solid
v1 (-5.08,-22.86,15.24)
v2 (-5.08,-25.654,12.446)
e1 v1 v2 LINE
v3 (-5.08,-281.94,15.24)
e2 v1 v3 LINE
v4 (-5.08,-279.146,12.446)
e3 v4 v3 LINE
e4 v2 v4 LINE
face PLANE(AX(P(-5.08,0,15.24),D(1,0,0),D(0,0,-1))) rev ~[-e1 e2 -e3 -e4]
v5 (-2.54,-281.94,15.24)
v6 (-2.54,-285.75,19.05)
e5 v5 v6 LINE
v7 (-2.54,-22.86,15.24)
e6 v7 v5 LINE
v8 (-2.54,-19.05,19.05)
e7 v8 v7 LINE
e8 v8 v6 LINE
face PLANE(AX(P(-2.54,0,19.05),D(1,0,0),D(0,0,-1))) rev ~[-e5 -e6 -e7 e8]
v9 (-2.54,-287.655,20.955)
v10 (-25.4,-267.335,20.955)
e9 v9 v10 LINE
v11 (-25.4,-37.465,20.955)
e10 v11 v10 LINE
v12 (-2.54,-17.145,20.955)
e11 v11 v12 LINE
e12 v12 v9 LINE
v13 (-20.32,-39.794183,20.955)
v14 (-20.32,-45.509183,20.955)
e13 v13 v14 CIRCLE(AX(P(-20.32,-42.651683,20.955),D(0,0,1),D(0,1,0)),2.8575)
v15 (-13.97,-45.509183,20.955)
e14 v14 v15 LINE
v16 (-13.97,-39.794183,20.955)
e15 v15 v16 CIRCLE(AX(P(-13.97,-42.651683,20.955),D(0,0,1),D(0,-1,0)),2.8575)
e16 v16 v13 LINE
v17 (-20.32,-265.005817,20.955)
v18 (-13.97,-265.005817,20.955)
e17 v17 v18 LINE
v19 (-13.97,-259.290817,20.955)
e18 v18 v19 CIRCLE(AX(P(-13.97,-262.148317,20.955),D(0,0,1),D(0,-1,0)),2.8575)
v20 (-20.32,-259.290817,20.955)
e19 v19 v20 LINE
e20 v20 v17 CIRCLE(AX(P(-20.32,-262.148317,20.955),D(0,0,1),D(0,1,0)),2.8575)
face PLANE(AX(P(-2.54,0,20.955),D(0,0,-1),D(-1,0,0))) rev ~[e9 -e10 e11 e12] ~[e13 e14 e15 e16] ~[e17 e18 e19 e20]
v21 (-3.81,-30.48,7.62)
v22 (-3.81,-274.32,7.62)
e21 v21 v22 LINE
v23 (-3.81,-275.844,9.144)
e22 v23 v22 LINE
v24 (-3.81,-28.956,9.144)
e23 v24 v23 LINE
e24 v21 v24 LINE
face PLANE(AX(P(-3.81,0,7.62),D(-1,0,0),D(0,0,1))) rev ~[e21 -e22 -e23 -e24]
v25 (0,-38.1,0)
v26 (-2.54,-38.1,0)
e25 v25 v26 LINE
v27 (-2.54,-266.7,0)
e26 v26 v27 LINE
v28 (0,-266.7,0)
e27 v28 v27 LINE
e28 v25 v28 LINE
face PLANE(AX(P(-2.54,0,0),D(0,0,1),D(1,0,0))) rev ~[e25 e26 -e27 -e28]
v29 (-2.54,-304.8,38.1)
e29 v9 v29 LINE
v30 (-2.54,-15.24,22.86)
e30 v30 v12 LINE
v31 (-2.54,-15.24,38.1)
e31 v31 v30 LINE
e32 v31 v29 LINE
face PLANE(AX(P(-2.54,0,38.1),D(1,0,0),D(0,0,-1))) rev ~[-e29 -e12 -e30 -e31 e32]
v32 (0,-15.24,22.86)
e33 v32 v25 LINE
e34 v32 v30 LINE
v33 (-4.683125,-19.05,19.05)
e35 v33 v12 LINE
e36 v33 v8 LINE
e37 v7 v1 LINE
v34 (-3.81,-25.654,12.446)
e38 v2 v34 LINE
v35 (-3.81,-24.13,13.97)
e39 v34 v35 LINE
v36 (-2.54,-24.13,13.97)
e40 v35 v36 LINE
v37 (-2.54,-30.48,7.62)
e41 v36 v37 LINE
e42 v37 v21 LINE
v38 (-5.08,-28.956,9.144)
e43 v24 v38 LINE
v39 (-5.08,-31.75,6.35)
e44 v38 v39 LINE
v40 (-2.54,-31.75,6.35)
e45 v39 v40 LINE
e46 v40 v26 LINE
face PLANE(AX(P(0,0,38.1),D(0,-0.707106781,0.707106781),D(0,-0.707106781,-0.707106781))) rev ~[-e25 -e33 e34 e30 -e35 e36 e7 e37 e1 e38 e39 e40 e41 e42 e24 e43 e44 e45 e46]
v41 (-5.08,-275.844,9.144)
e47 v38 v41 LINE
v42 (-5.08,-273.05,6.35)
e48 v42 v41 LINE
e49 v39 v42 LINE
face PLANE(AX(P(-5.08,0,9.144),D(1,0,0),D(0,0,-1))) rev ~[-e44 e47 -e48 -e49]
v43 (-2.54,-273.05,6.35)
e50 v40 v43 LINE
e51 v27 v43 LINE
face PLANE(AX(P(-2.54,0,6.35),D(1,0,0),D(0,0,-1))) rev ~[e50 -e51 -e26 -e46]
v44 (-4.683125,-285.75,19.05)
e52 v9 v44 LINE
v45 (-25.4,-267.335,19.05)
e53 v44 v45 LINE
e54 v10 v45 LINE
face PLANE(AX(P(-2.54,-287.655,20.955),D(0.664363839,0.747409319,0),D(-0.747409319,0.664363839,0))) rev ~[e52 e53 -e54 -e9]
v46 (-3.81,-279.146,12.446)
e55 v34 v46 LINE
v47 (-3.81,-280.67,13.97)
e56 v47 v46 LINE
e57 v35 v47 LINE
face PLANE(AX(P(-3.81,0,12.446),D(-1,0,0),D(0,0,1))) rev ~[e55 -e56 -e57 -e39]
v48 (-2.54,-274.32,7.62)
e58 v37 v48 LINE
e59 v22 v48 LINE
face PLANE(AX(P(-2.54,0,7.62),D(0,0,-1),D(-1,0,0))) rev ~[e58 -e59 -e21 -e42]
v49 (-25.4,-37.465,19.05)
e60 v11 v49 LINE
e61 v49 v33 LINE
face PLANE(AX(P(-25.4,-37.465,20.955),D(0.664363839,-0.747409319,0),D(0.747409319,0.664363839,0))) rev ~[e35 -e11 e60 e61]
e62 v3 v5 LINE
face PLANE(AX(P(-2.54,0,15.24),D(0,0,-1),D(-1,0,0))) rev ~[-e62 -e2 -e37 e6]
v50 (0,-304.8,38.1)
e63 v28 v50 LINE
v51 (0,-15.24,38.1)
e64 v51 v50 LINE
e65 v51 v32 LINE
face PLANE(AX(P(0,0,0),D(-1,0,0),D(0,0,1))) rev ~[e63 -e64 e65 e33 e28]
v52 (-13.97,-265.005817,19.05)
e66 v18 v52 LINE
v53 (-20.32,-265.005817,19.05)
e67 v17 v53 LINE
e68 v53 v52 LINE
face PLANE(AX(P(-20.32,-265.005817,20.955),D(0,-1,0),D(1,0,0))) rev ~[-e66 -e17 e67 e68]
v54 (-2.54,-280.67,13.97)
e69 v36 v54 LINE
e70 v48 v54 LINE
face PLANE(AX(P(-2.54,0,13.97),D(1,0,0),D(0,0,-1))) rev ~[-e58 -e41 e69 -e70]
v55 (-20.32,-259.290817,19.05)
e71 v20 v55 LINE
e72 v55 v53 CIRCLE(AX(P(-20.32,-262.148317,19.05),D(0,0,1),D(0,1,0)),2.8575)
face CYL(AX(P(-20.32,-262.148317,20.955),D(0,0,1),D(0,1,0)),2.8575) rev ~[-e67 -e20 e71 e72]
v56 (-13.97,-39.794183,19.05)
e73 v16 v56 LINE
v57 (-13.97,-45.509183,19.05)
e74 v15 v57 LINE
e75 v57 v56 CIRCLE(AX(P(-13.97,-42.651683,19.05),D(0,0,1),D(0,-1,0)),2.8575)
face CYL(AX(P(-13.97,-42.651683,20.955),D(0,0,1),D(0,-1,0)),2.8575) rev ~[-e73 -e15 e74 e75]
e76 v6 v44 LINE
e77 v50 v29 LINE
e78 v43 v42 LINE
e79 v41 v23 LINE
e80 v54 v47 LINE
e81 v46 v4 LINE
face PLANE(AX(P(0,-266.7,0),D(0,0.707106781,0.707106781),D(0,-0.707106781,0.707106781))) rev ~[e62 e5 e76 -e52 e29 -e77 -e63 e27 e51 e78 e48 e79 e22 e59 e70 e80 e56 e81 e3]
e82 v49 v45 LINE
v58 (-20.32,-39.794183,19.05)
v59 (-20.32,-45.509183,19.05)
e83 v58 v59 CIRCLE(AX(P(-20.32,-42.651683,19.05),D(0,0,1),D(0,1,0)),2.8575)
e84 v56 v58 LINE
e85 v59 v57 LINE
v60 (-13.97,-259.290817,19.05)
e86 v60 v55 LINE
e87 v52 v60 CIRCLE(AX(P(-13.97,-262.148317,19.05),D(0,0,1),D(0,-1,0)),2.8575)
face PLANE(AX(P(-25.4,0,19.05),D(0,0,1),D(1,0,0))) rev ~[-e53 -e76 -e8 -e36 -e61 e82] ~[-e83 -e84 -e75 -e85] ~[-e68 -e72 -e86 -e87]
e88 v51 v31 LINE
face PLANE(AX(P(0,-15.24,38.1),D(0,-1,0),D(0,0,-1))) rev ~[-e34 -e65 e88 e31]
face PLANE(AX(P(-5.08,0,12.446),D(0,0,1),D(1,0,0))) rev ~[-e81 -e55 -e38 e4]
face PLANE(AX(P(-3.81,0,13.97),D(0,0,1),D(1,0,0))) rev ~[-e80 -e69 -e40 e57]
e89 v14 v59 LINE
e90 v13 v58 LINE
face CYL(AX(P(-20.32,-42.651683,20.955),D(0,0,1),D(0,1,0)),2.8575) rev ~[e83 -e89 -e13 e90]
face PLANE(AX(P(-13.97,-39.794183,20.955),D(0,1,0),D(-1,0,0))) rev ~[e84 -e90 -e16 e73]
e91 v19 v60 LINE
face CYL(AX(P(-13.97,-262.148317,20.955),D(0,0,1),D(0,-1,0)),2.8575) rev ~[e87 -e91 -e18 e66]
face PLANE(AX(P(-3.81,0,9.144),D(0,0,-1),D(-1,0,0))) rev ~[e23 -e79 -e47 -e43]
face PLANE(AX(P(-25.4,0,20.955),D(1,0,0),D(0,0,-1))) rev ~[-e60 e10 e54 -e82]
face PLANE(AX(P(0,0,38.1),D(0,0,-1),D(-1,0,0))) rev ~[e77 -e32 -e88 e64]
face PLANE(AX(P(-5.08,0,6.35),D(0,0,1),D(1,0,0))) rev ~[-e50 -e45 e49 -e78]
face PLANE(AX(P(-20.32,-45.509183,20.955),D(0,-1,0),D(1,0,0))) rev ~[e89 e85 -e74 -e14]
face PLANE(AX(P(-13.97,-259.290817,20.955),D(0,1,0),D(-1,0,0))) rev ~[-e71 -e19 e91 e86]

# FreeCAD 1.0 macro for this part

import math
import FreeCAD as App
import Part
import Sketcher
from FreeCAD import Vector
Q = App.Units.Quantity

doc = App.newDocument("Part")
params = doc.addObject("Spreadsheet::Sheet", "Params")
for row, (alias, value) in enumerate([
    ("sketch1_width", "0.1 in"),
    ("sketch1_width2", "0.9 in"),
    ("sketch1_height", "1.5 in"),
    ("sketch1_height2", "0.15 in"),
    ("sketch1_height3", "0.11 in"),
    ("pad1_length", "12 in"),
    ("sketch2_width", "1.5 in"),
    ("pocket1_length", "1 in"),
    ("sketch3_width", "0.9 in"),
    ("sketch3_height", "0.8 in"),
    ("pocket2_length", "1 in"),
    ("sketch4_width", "0.25 in"),
    ("pocket3_length", "1 in"),
    ("sketch5_width", "0.6 in"),
    ("pocket4_length", "1 in"),
], start=1):
    params.set(f"A{row}", alias)
    params.set(f"B{row}", "=" + value)
    params.setAlias(f"B{row}", alias)

body = doc.addObject("PartDesign::Body", "Body")

# Sketch on XZ plane
sketch1 = body.newObject("Sketcher::SketchObject", "Sketch")
sketch1.AttachmentSupport = (doc.getObject("XZ_Plane"), [""])
sketch1.MapMode = "FlatFace"
sketch1.addGeometry([
    Part.LineSegment(Vector(-2.5, 0, 0), Vector(0, 0, 0)),  # 0
    Part.LineSegment(Vector(0, 0, 0), Vector(0, 38.1, 0)),  # 1
    Part.LineSegment(Vector(0, 38.1, 0), Vector(-2.5, 38.1, 0)),  # 2
    Part.LineSegment(Vector(-2.5, 38.1, 0), Vector(-2.5, 21, 0)),  # 3
    Part.LineSegment(Vector(-2.5, 21, 0), Vector(-25.4, 21, 0)),  # 4
    Part.LineSegment(Vector(-25.4, 21, 0), Vector(-25.4, 19.1, 0)),  # 5
    Part.LineSegment(Vector(-25.4, 19.1, 0), Vector(-2.5, 19.1, 0)),  # 6
    Part.LineSegment(Vector(-2.5, 19.1, 0), Vector(-2.5, 15.2, 0)),  # 7
    Part.LineSegment(Vector(-2.5, 15.2, 0), Vector(-5.1, 15.2, 0)),  # 8
    Part.LineSegment(Vector(-5.1, 15.2, 0), Vector(-5.1, 12.4, 0)),  # 9
    Part.LineSegment(Vector(-5.1, 12.4, 0), Vector(-3.8, 12.4, 0)),  # 10
    Part.LineSegment(Vector(-3.8, 12.4, 0), Vector(-3.8, 14, 0)),  # 11
    Part.LineSegment(Vector(-3.8, 14, 0), Vector(-2.5, 14, 0)),  # 12
    Part.LineSegment(Vector(-2.5, 14, 0), Vector(-2.5, 7.6, 0)),  # 13
    Part.LineSegment(Vector(-2.5, 7.6, 0), Vector(-3.8, 7.6, 0)),  # 14
    Part.LineSegment(Vector(-3.8, 7.6, 0), Vector(-3.8, 9.1, 0)),  # 15
    Part.LineSegment(Vector(-3.8, 9.1, 0), Vector(-5.1, 9.1, 0)),  # 16
    Part.LineSegment(Vector(-5.1, 9.1, 0), Vector(-5.1, 6.3, 0)),  # 17
    Part.LineSegment(Vector(-5.1, 6.3, 0), Vector(-2.5, 6.3, 0)),  # 18
    Part.LineSegment(Vector(-2.5, 6.3, 0), Vector(-2.5, 0, 0)),  # 19
], False)
sketch1.addConstraint([
    Sketcher.Constraint("Coincident", 0, 2, 1, 1),
    Sketcher.Constraint("Coincident", 1, 2, 2, 1),
    Sketcher.Constraint("Coincident", 2, 2, 3, 1),
    Sketcher.Constraint("Coincident", 3, 2, 4, 1),
    Sketcher.Constraint("Coincident", 4, 2, 5, 1),
    Sketcher.Constraint("Coincident", 5, 2, 6, 1),
    Sketcher.Constraint("Coincident", 6, 2, 7, 1),
    Sketcher.Constraint("Coincident", 7, 2, 8, 1),
    Sketcher.Constraint("Coincident", 8, 2, 9, 1),
    Sketcher.Constraint("Coincident", 9, 2, 10, 1),
    Sketcher.Constraint("Coincident", 10, 2, 11, 1),
    Sketcher.Constraint("Coincident", 11, 2, 12, 1),
    Sketcher.Constraint("Coincident", 12, 2, 13, 1),
    Sketcher.Constraint("Coincident", 13, 2, 14, 1),
    Sketcher.Constraint("Coincident", 14, 2, 15, 1),
    Sketcher.Constraint("Coincident", 15, 2, 16, 1),
    Sketcher.Constraint("Coincident", 16, 2, 17, 1),
    Sketcher.Constraint("Coincident", 17, 2, 18, 1),
    Sketcher.Constraint("Coincident", 18, 2, 19, 1),
    Sketcher.Constraint("Coincident", 19, 2, 0, 1),
    Sketcher.Constraint("Horizontal", 0),
    Sketcher.Constraint("Vertical", 1),
    Sketcher.Constraint("Horizontal", 2),
    Sketcher.Constraint("Vertical", 3),
    Sketcher.Constraint("Horizontal", 4),
    Sketcher.Constraint("Vertical", 5),
    Sketcher.Constraint("Horizontal", 6),
    Sketcher.Constraint("Vertical", 7),
    Sketcher.Constraint("Horizontal", 8),
    Sketcher.Constraint("Vertical", 9),
    Sketcher.Constraint("Horizontal", 10),
    Sketcher.Constraint("Vertical", 11),
    Sketcher.Constraint("Horizontal", 12),
    Sketcher.Constraint("Vertical", 13),
    Sketcher.Constraint("Horizontal", 14),
    Sketcher.Constraint("Vertical", 15),
    Sketcher.Constraint("Horizontal", 16),
    Sketcher.Constraint("Vertical", 17),
    Sketcher.Constraint("Horizontal", 18),
    Sketcher.Constraint("Vertical", 19),
    Sketcher.Constraint("Coincident", 0, 2, -1, 1),
    Sketcher.Constraint("Vertical", 3, 2, 6, 2),
    Sketcher.Constraint("Vertical", 7, 2, 12, 2),
    Sketcher.Constraint("Vertical", 11, 2, 14, 2),
    Sketcher.Constraint("Vertical", 9, 2, 16, 2),
    Sketcher.Constraint("Vertical", 13, 2, 18, 2),
    Sketcher.Constraint("Equal", 2, 8),
    Sketcher.Constraint("Equal", 10, 12),
    Sketcher.Constraint("Equal", 11, 15),
    Sketcher.Constraint("Equal", 9, 17),
    Sketcher.Constraint("Equal", 13, 19),
    Sketcher.Constraint("DistanceX", 0, 1, 0, 2, Q("0.1 in")),
    Sketcher.Constraint("DistanceX", 4, 2, 4, 1, Q("0.9 in")),
    Sketcher.Constraint("DistanceY", 1, 1, 1, 2, Q("1.5 in")),
    Sketcher.Constraint("DistanceY", 7, 2, 7, 1, Q("0.15 in")),
    Sketcher.Constraint("DistanceY", 9, 2, 9, 1, Q("0.11 in")),
    Sketcher.Constraint("DistanceY", 11, 1, 11, 2, Q("0.06 in")),
    Sketcher.Constraint("DistanceY", 13, 2, 13, 1, Q("0.25 in")),
    Sketcher.Constraint("DistanceY", 3, 2, 3, 1, Q("0.675 in")),
])
sketch1.setExpression("Constraints[51]", "Params.sketch1_width")
sketch1.setExpression("Constraints[52]", "Params.sketch1_width2")
sketch1.setExpression("Constraints[53]", "Params.sketch1_height")
sketch1.setExpression("Constraints[54]", "Params.sketch1_height2")
sketch1.setExpression("Constraints[55]", "Params.sketch1_height3")
pad1 = body.newObject("PartDesign::Pad", "Pad")
pad1.Profile = sketch1
pad1.setExpression("Length", "Params.pad1_length")

# Sketch on YZ plane
sketch2 = body.newObject("Sketcher::SketchObject", "Sketch001")
sketch2.AttachmentSupport = (doc.getObject("YZ_Plane"), [""])
sketch2.MapMode = "FlatFace"
sketch2.addGeometry([
    Part.LineSegment(Vector(-267, 0, 0), Vector(-305, 38, 0)),  # 0
    Part.LineSegment(Vector(-305, 38, 0), Vector(-305, 0, 0)),  # 1
    Part.LineSegment(Vector(-305, 0, 0), Vector(-267, 0, 0)),  # 2
    Part.LineSegment(Vector(0, 0, 0), Vector(0, 38, 0)),  # 3
    Part.LineSegment(Vector(0, 38, 0), Vector(-38, 0, 0)),  # 4
    Part.LineSegment(Vector(-38, 0, 0), Vector(0, 0, 0)),  # 5
], False)
sketch2.addConstraint([
    Sketcher.Constraint("Coincident", 0, 2, 1, 1),
    Sketcher.Constraint("Coincident", 1, 2, 2, 1),
    Sketcher.Constraint("Coincident", 2, 2, 0, 1),
    Sketcher.Constraint("Coincident", 3, 2, 4, 1),
    Sketcher.Constraint("Coincident", 4, 2, 5, 1),
    Sketcher.Constraint("Coincident", 5, 2, 3, 1),
    Sketcher.Constraint("Vertical", 1),
    Sketcher.Constraint("Horizontal", 2),
    Sketcher.Constraint("Vertical", 3),
    Sketcher.Constraint("Horizontal", 5),
    Sketcher.Constraint("Coincident", 5, 2, -1, 1),
    Sketcher.Constraint("PointOnObject", 1, 2, -1),
    Sketcher.Constraint("Perpendicular", 0, 4),
    Sketcher.Constraint("Horizontal", 0, 2, 3, 2),
    Sketcher.Constraint("Equal", 2, 5),
    Sketcher.Constraint("DistanceX", 2, 1, 2, 2, Q("1.5 in")),
    Sketcher.Constraint("DistanceX", 0, 2, -1, 1, Q("12 in")),
])
sketch2.setExpression("Constraints[15]", "Params.sketch2_width")
pocket1 = body.newObject("PartDesign::Pocket", "Pocket")
pocket1.Profile = sketch2
pocket1.setExpression("Length", "Params.pocket1_length")

# Sketch on XY plane
sketch3 = body.newObject("Sketcher::SketchObject", "Sketch002")
sketch3.AttachmentSupport = (doc.getObject("XY_Plane"), [""])
sketch3.MapMode = "FlatFace"
sketch3.AttachmentOffset = App.Placement(Vector(0, 0, 0.825 * 25.4), App.Rotation())
sketch3.addGeometry([
    Part.LineSegment(Vector(-25, -37, 0), Vector(-3, -17, 0)),  # 0
    Part.LineSegment(Vector(-3, -17, 0), Vector(-25, -17, 0)),  # 1
    Part.LineSegment(Vector(-25, -17, 0), Vector(-25, -37, 0)),  # 2
    Part.LineSegment(Vector(-25, -288, 0), Vector(-3, -288, 0)),  # 3
    Part.LineSegment(Vector(-3, -288, 0), Vector(-25, -267, 0)),  # 4
    Part.LineSegment(Vector(-25, -267, 0), Vector(-25, -288, 0)),  # 5
], False)
sketch3.addConstraint([
    Sketcher.Constraint("Coincident", 0, 2, 1, 1),
    Sketcher.Constraint("Coincident", 1, 2, 2, 1),
    Sketcher.Constraint("Coincident", 2, 2, 0, 1),
    Sketcher.Constraint("Coincident", 3, 2, 4, 1),
    Sketcher.Constraint("Coincident", 4, 2, 5, 1),
    Sketcher.Constraint("Coincident", 5, 2, 3, 1),
    Sketcher.Constraint("Horizontal", 1),
    Sketcher.Constraint("Vertical", 2),
    Sketcher.Constraint("Horizontal", 3),
    Sketcher.Constraint("Vertical", 5),
    Sketcher.Constraint("Vertical", 0, 2, 3, 2),
    Sketcher.Constraint("Vertical", 2, 2, 4, 2),
    Sketcher.Constraint("Equal", 2, 5),
    Sketcher.Constraint("DistanceX", 1, 2, 1, 1, Q("0.9 in")),
    Sketcher.Constraint("DistanceY", 2, 2, 2, 1, Q("0.8 in")),
    Sketcher.Constraint("DistanceX", 1, 2, -1, 1, Q("1 in")),
    Sketcher.Constraint("DistanceY", 3, 2, 2, 2, Q("9.85 in")),
    Sketcher.Constraint("DistanceY", 0, 2, -1, 1, Q("0.675 in")),
])
sketch3.setExpression("Constraints[13]", "Params.sketch3_width")
sketch3.setExpression("Constraints[14]", "Params.sketch3_height")
pocket2 = body.newObject("PartDesign::Pocket", "Pocket001")
pocket2.Profile = sketch3
pocket2.setExpression("Length", "Params.pocket2_length")

# Sketch on XY plane
sketch4 = body.newObject("Sketcher::SketchObject", "Sketch003")
sketch4.AttachmentSupport = (doc.getObject("XY_Plane"), [""])
sketch4.MapMode = "FlatFace"
sketch4.AttachmentOffset = App.Placement(Vector(0, 0, 0.825 * 25.4), App.Rotation())
sketch4.addGeometry([
    Part.LineSegment(Vector(-14, -39.8, 0), Vector(-20.3, -39.8, 0)),  # 0
    Part.ArcOfCircle(Part.Circle(Vector(-20.3, -42.7, 0), Vector(0, 0, 1), 2.9), math.radians(90), math.radians(270)),  # 1
    Part.LineSegment(Vector(-20.3, -45.5, 0), Vector(-14, -45.5, 0)),  # 2
    Part.ArcOfCircle(Part.Circle(Vector(-14, -42.7, 0), Vector(0, 0, 1), 2.9), math.radians(-90), math.radians(90)),  # 3
    Part.LineSegment(Vector(-20.3, -265, 0), Vector(-14, -265, 0)),  # 4
    Part.ArcOfCircle(Part.Circle(Vector(-14, -262.1, 0), Vector(0, 0, 1), 2.9), math.radians(-90), math.radians(90)),  # 5
    Part.LineSegment(Vector(-14, -259.3, 0), Vector(-20.3, -259.3, 0)),  # 6
    Part.ArcOfCircle(Part.Circle(Vector(-20.3, -262.1, 0), Vector(0, 0, 1), 2.9), math.radians(90), math.radians(270)),  # 7
], False)
sketch4.addConstraint([
    Sketcher.Constraint("Tangent", 0, 2, 1, 1),
    Sketcher.Constraint("Tangent", 1, 2, 2, 1),
    Sketcher.Constraint("Tangent", 2, 2, 3, 1),
    Sketcher.Constraint("Tangent", 3, 2, 0, 1),
    Sketcher.Constraint("Tangent", 4, 2, 5, 1),
    Sketcher.Constraint("Tangent", 5, 2, 6, 1),
    Sketcher.Constraint("Tangent", 6, 2, 7, 1),
    Sketcher.Constraint("Tangent", 7, 2, 4, 1),
    Sketcher.Constraint("Horizontal", 0),
    Sketcher.Constraint("Horizontal", 2),
    Sketcher.Constraint("Horizontal", 4),
    Sketcher.Constraint("Horizontal", 6),
    Sketcher.Constraint("Equal", 3, 5),
    Sketcher.Constraint("Vertical", 3, 3, 5, 3),
    Sketcher.Constraint("Vertical", 1, 3, 7, 3),
    Sketcher.Constraint("DistanceX", 0, 2, 0, 1, Q("0.25 in")),
    Sketcher.Constraint("DistanceX", 1, 3, -1, 1, Q("0.8 in")),
    Sketcher.Constraint("Radius", 1, Q("0.1125 in")),
    Sketcher.Constraint("DistanceY", 1, 3, -1, 1, Q("1.6792001 in")),
    Sketcher.Constraint("DistanceY", 5, 3, -1, 1, Q("10.3207999 in")),
])
sketch4.setExpression("Constraints[15]", "Params.sketch4_width")
pocket3 = body.newObject("PartDesign::Pocket", "Pocket002")
pocket3.Profile = sketch4
pocket3.setExpression("Length", "Params.pocket3_length")

# Sketch on YZ plane
sketch5 = body.newObject("Sketcher::SketchObject", "Sketch004")
sketch5.AttachmentSupport = (doc.getObject("YZ_Plane"), [""])
sketch5.MapMode = "FlatFace"
sketch5.addGeometry([
    Part.LineSegment(Vector(-15, 23, 0), Vector(0, 38, 0)),
    Part.LineSegment(Vector(0, 38, 0), Vector(-15, 38, 0)),
    Part.LineSegment(Vector(-15, 38, 0), Vector(-15, 23, 0)),
], False)
sketch5.addConstraint([
    Sketcher.Constraint("Coincident", 0, 2, 1, 1),
    Sketcher.Constraint("Coincident", 1, 2, 2, 1),
    Sketcher.Constraint("Coincident", 2, 2, 0, 1),
    Sketcher.Constraint("Horizontal", 1),
    Sketcher.Constraint("Vertical", 2),
    Sketcher.Constraint("PointOnObject", 0, 2, -2),
    Sketcher.Constraint("Equal", 1, 2),
    Sketcher.Constraint("DistanceX", 1, 2, 1, 1, Q("0.6 in")),
    Sketcher.Constraint("DistanceY", -1, 1, 0, 2, Q("1.5 in")),
])
sketch5.setExpression("Constraints[7]", "Params.sketch5_width")
pocket4 = body.newObject("PartDesign::Pocket", "Pocket003")
pocket4.Profile = sketch5
pocket4.setExpression("Length", "Params.pocket4_length")

doc.recompute()
